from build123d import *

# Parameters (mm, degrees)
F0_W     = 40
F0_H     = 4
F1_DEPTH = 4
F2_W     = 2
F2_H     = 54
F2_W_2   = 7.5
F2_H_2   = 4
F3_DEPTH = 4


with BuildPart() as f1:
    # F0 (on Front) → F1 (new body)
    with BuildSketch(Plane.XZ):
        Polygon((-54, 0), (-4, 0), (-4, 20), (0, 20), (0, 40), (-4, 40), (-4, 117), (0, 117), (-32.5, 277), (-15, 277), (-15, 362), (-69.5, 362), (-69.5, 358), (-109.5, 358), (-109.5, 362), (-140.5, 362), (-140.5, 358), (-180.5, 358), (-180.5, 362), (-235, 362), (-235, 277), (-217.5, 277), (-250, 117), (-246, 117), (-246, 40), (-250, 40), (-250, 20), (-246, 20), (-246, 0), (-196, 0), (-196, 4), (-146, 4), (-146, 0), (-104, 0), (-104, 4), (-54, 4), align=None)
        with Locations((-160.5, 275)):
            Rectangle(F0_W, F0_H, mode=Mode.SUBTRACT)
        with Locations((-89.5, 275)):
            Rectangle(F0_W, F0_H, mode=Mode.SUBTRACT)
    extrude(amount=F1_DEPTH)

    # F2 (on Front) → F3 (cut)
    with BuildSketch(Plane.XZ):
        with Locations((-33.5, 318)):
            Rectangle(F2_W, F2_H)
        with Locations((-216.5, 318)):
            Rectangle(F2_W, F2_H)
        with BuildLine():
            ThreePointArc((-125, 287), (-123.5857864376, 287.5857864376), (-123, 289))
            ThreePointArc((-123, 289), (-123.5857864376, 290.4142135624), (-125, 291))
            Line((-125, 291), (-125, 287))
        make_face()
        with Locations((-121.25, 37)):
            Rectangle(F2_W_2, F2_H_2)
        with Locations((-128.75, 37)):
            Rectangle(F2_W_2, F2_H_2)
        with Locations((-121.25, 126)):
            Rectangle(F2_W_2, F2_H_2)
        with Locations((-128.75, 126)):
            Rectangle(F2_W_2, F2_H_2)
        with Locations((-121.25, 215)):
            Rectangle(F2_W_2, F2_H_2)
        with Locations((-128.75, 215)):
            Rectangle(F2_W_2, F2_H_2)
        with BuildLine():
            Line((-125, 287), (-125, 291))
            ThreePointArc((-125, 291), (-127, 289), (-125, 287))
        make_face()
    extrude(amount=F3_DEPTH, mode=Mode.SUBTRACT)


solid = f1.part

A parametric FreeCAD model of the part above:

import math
import FreeCAD as App
import Part
import Sketcher

V = App.Vector

doc = App.newDocument("Part")
body = doc.addObject("PartDesign::Body", "Body")

# Sketch on XZ plane
sketch1 = doc.addObject("Sketcher::SketchObject", "Sketch")
body.addObject(sketch1)
sketch1.AttachmentSupport = (doc.XZ_Plane, [""])
sketch1.MapMode = "FlatFace"
sketch1.addGeometry([
    Part.LineSegment(V(-54, 0, 0), V(-4, 0, 0)),  # 0
    Part.LineSegment(V(-4, 0, 0), V(-4, 20, 0)),  # 1
    Part.LineSegment(V(-4, 20, 0), V(0, 20, 0)),  # 2
    Part.LineSegment(V(0, 20, 0), V(0, 40, 0)),  # 3
    Part.LineSegment(V(0, 40, 0), V(-4, 40, 0)),  # 4
    Part.LineSegment(V(-4, 40, 0), V(-4, 117, 0)),  # 5
    Part.LineSegment(V(-4, 117, 0), V(0, 117, 0)),  # 6
    Part.LineSegment(V(0, 117, 0), V(-32.5, 277, 0)),  # 7
    Part.LineSegment(V(-32.5, 277, 0), V(-15, 277, 0)),  # 8
    Part.LineSegment(V(-15, 277, 0), V(-15, 362, 0)),  # 9
    Part.LineSegment(V(-15, 362, 0), V(-69.5, 362, 0)),  # 10
    Part.LineSegment(V(-69.5, 362, 0), V(-69.5, 358, 0)),  # 11
    Part.LineSegment(V(-69.5, 358, 0), V(-109.5, 358, 0)),  # 12
    Part.LineSegment(V(-109.5, 358, 0), V(-109.5, 362, 0)),  # 13
    Part.LineSegment(V(-109.5, 362, 0), V(-140.5, 362, 0)),  # 14
    Part.LineSegment(V(-140.5, 362, 0), V(-140.5, 358, 0)),  # 15
    Part.LineSegment(V(-140.5, 358, 0), V(-180.5, 358, 0)),  # 16
    Part.LineSegment(V(-180.5, 358, 0), V(-180.5, 362, 0)),  # 17
    Part.LineSegment(V(-180.5, 362, 0), V(-235, 362, 0)),  # 18
    Part.LineSegment(V(-235, 362, 0), V(-235, 277, 0)),  # 19
    Part.LineSegment(V(-235, 277, 0), V(-217.5, 277, 0)),  # 20
    Part.LineSegment(V(-217.5, 277, 0), V(-250, 117, 0)),  # 21
    Part.LineSegment(V(-250, 117, 0), V(-246, 117, 0)),  # 22
    Part.LineSegment(V(-246, 117, 0), V(-246, 40, 0)),  # 23
    Part.LineSegment(V(-246, 40, 0), V(-250, 40, 0)),  # 24
    Part.LineSegment(V(-250, 40, 0), V(-250, 20, 0)),  # 25
    Part.LineSegment(V(-250, 20, 0), V(-246, 20, 0)),  # 26
    Part.LineSegment(V(-246, 20, 0), V(-246, 0, 0)),  # 27
    Part.LineSegment(V(-246, 0, 0), V(-196, 0, 0)),  # 28
    Part.LineSegment(V(-196, 0, 0), V(-196, 4, 0)),  # 29
    Part.LineSegment(V(-196, 4, 0), V(-146, 4, 0)),  # 30
    Part.LineSegment(V(-146, 4, 0), V(-146, 0, 0)),  # 31
    Part.LineSegment(V(-146, 0, 0), V(-104, 0, 0)),  # 32
    Part.LineSegment(V(-104, 0, 0), V(-104, 4, 0)),  # 33
    Part.LineSegment(V(-104, 4, 0), V(-54, 4, 0)),  # 34
    Part.LineSegment(V(-54, 4, 0), V(-54, 0, 0)),  # 35
    Part.LineSegment(V(-140.5, 273, 0), V(-180.5, 273, 0)),  # 36
    Part.LineSegment(V(-180.5, 273, 0), V(-180.5, 277, 0)),  # 37
    Part.LineSegment(V(-180.5, 277, 0), V(-140.5, 277, 0)),  # 38
    Part.LineSegment(V(-140.5, 277, 0), V(-140.5, 273, 0)),  # 39
    Part.LineSegment(V(-69.5, 273, 0), V(-109.5, 273, 0)),  # 40
    Part.LineSegment(V(-109.5, 273, 0), V(-109.5, 277, 0)),  # 41
    Part.LineSegment(V(-109.5, 277, 0), V(-69.5, 277, 0)),  # 42
    Part.LineSegment(V(-69.5, 277, 0), V(-69.5, 273, 0)),  # 43
], False)
sketch1.addConstraint([
    Sketcher.Constraint("Coincident", 0, 2, 1, 1),
    Sketcher.Constraint("Coincident", 1, 2, 2, 1),
    Sketcher.Constraint("Coincident", 2, 2, 3, 1),
    Sketcher.Constraint("Coincident", 3, 2, 4, 1),
    Sketcher.Constraint("Coincident", 4, 2, 5, 1),
    Sketcher.Constraint("Coincident", 5, 2, 6, 1),
    Sketcher.Constraint("Coincident", 6, 2, 7, 1),
    Sketcher.Constraint("Coincident", 7, 2, 8, 1),
    Sketcher.Constraint("Coincident", 8, 2, 9, 1),
    Sketcher.Constraint("Coincident", 9, 2, 10, 1),
    Sketcher.Constraint("Coincident", 10, 2, 11, 1),
    Sketcher.Constraint("Coincident", 11, 2, 12, 1),
    Sketcher.Constraint("Coincident", 12, 2, 13, 1),
    Sketcher.Constraint("Coincident", 13, 2, 14, 1),
    Sketcher.Constraint("Coincident", 14, 2, 15, 1),
    Sketcher.Constraint("Coincident", 15, 2, 16, 1),
    Sketcher.Constraint("Coincident", 16, 2, 17, 1),
    Sketcher.Constraint("Coincident", 17, 2, 18, 1),
    Sketcher.Constraint("Coincident", 18, 2, 19, 1),
    Sketcher.Constraint("Coincident", 19, 2, 20, 1),
    Sketcher.Constraint("Coincident", 20, 2, 21, 1),
    Sketcher.Constraint("Coincident", 21, 2, 22, 1),
    Sketcher.Constraint("Coincident", 22, 2, 23, 1),
    Sketcher.Constraint("Coincident", 23, 2, 24, 1),
    Sketcher.Constraint("Coincident", 24, 2, 25, 1),
    Sketcher.Constraint("Coincident", 25, 2, 26, 1),
    Sketcher.Constraint("Coincident", 26, 2, 27, 1),
    Sketcher.Constraint("Coincident", 27, 2, 28, 1),
    Sketcher.Constraint("Coincident", 28, 2, 29, 1),
    Sketcher.Constraint("Coincident", 29, 2, 30, 1),
    Sketcher.Constraint("Coincident", 30, 2, 31, 1),
    Sketcher.Constraint("Coincident", 31, 2, 32, 1),
    Sketcher.Constraint("Coincident", 32, 2, 33, 1),
    Sketcher.Constraint("Coincident", 33, 2, 34, 1),
    Sketcher.Constraint("Coincident", 34, 2, 35, 1),
    Sketcher.Constraint("Coincident", 35, 2, 0, 1),
    Sketcher.Constraint("Coincident", 36, 2, 37, 1),
    Sketcher.Constraint("Coincident", 37, 2, 38, 1),
    Sketcher.Constraint("Coincident", 38, 2, 39, 1),
    Sketcher.Constraint("Coincident", 39, 2, 36, 1),
    Sketcher.Constraint("Coincident", 40, 2, 41, 1),
    Sketcher.Constraint("Coincident", 41, 2, 42, 1),
    Sketcher.Constraint("Coincident", 42, 2, 43, 1),
    Sketcher.Constraint("Coincident", 43, 2, 40, 1),
    Sketcher.Constraint("Horizontal", 0),
    Sketcher.Constraint("Vertical", 1),
    Sketcher.Constraint("Horizontal", 2),
    Sketcher.Constraint("Vertical", 3),
    Sketcher.Constraint("Horizontal", 4),
    Sketcher.Constraint("Vertical", 5),
    Sketcher.Constraint("Horizontal", 6),
    Sketcher.Constraint("Horizontal", 8),
    Sketcher.Constraint("Vertical", 9),
    Sketcher.Constraint("Horizontal", 10),
    Sketcher.Constraint("Vertical", 11),
    Sketcher.Constraint("Horizontal", 12),
    Sketcher.Constraint("Vertical", 13),
    Sketcher.Constraint("Horizontal", 14),
    Sketcher.Constraint("Vertical", 15),
    Sketcher.Constraint("Horizontal", 16),
    Sketcher.Constraint("Vertical", 17),
    Sketcher.Constraint("Horizontal", 18),
    Sketcher.Constraint("Vertical", 19),
    Sketcher.Constraint("Horizontal", 20),
    Sketcher.Constraint("Horizontal", 22),
    Sketcher.Constraint("Vertical", 23),
    Sketcher.Constraint("Horizontal", 24),
    Sketcher.Constraint("Vertical", 25),
    Sketcher.Constraint("Horizontal", 26),
    Sketcher.Constraint("Vertical", 27),
    Sketcher.Constraint("Horizontal", 28),
    Sketcher.Constraint("Vertical", 29),
    Sketcher.Constraint("Horizontal", 30),
    Sketcher.Constraint("Vertical", 31),
    Sketcher.Constraint("Horizontal", 32),
    Sketcher.Constraint("Vertical", 33),
    Sketcher.Constraint("Horizontal", 34),
    Sketcher.Constraint("Vertical", 35),
    Sketcher.Constraint("Horizontal", 36),
    Sketcher.Constraint("Vertical", 37),
    Sketcher.Constraint("Horizontal", 38),
    Sketcher.Constraint("Vertical", 39),
    Sketcher.Constraint("Horizontal", 40),
    Sketcher.Constraint("Vertical", 41),
    Sketcher.Constraint("Horizontal", 42),
    Sketcher.Constraint("Vertical", 43),
    Sketcher.Constraint("PointOnObject", 0, 2, -1),
    Sketcher.Constraint("PointOnObject", 2, 2, -2),
    Sketcher.Constraint("PointOnObject", 6, 2, -2),
    Sketcher.Constraint("PointOnObject", 27, 2, -1),
    Sketcher.Constraint("PointOnObject", 31, 2, -1),
    Sketcher.Constraint("Horizontal", 10, 2, 13, 2),
    Sketcher.Constraint("Horizontal", 12, 2, 15, 2),
    Sketcher.Constraint("Horizontal", 14, 2, 17, 2),
    Sketcher.Constraint("Horizontal", 8, 2, 19, 2),
    Sketcher.Constraint("Horizontal", 6, 2, 21, 2),
    Sketcher.Constraint("Horizontal", 4, 2, 23, 2),
    Sketcher.Constraint("Horizontal", 2, 2, 25, 2),
    Sketcher.Constraint("Horizontal", 30, 2, 33, 2),
    Sketcher.Constraint("Horizontal", 20, 2, 37, 2),
    Sketcher.Constraint("Horizontal", 39, 2, 40, 2),
    Sketcher.Constraint("Horizontal", 38, 2, 41, 2),
    Sketcher.Constraint("Vertical", 1, 2, 4, 2),
    Sketcher.Constraint("Vertical", 21, 2, 24, 2),
    Sketcher.Constraint("Vertical", 23, 2, 26, 2),
    Sketcher.Constraint("Vertical", 17, 2, 36, 2),
    Sketcher.Constraint("Vertical", 15, 2, 38, 2),
    Sketcher.Constraint("Vertical", 13, 2, 40, 2),
    Sketcher.Constraint("Vertical", 11, 2, 42, 2),
    Sketcher.Constraint("Equal", 12, 16),
    Sketcher.Constraint("Equal", 10, 18),
    Sketcher.Constraint("Equal", 8, 20),
    Sketcher.Constraint("Equal", 6, 22),
    Sketcher.Constraint("Equal", 0, 28),
    Sketcher.Constraint("Equal", 28, 30),
    Sketcher.Constraint("Equal", 30, 34),
    Sketcher.Constraint("Equal", 1, 3),
    Sketcher.Constraint("Equal", 26, 11),
    Sketcher.Constraint("Equal", 17, 29),
    Sketcher.Constraint("Equal", 35, 37),
    Sketcher.Constraint("Equal", 7, 21),
    Sketcher.Constraint("DistanceX", 0, 1, 0, 2, 50.0),
    Sketcher.Constraint("DistanceX", 2, 1, 2, 2, 4.0),
    Sketcher.Constraint("DistanceX", 12, 2, 12, 1, 40.0),
    Sketcher.Constraint("DistanceX", 14, 2, 14, 1, 31.0),
    Sketcher.Constraint("DistanceX", 32, 1, 32, 2, 42.0),
    Sketcher.Constraint("DistanceY", 1, 1, 1, 2, 20.0),
    Sketcher.Constraint("DistanceY", 5, 1, 5, 2, 77.0),
    Sketcher.Constraint("DistanceY", 9, 1, 9, 2, 85.0),
    Sketcher.Constraint("DistanceX", 8, 1, 8, 2, 17.5),
    Sketcher.Constraint("DistanceX", 10, 2, 10, 1, 54.5),
    Sketcher.Constraint("DistanceY", -1, 1, 7, 2, 277.0),
])
pad1 = doc.addObject("PartDesign::Pad", "Pad")
body.addObject(pad1)
pad1.Profile = sketch1
pad1.Length = 4

# Sketch on XZ plane
sketch2 = doc.addObject("Sketcher::SketchObject", "Sketch001")
body.addObject(sketch2)
sketch2.AttachmentSupport = (doc.XZ_Plane, [""])
sketch2.MapMode = "FlatFace"
sketch2.addGeometry([
    Part.LineSegment(V(-34.5, 345, 0), V(-34.5, 291, 0)),  # 0
    Part.LineSegment(V(-34.5, 291, 0), V(-32.5, 291, 0)),  # 1
    Part.LineSegment(V(-32.5, 291, 0), V(-32.5, 345, 0)),  # 2
    Part.LineSegment(V(-32.5, 345, 0), V(-34.5, 345, 0)),  # 3
    Part.LineSegment(V(-217.5, 345, 0), V(-217.5, 291, 0)),  # 4
    Part.LineSegment(V(-217.5, 291, 0), V(-215.5, 291, 0)),  # 5
    Part.LineSegment(V(-215.5, 291, 0), V(-215.5, 345, 0)),  # 6
    Part.LineSegment(V(-215.5, 345, 0), V(-217.5, 345, 0)),  # 7
    Part.ArcOfCircle(Part.Circle(V(-125, 289, 0), V(0, 0, 1), 2), math.radians(-90), math.radians(0)),  # 8
    Part.ArcOfCircle(Part.Circle(V(-125, 289, 0), V(0, 0, 1), 2), math.radians(0), math.radians(90)),  # 9
    Part.ArcOfCircle(Part.Circle(V(-125, 289, 0), V(0, 0, 1), 2), math.radians(90), math.radians(270)),  # 10
    Part.LineSegment(V(-117.5, 35, 0), V(-117.5, 39, 0)),  # 11
    Part.LineSegment(V(-117.5, 39, 0), V(-132.5, 39, 0)),  # 12
    Part.LineSegment(V(-132.5, 39, 0), V(-132.5, 35, 0)),  # 13
    Part.LineSegment(V(-132.5, 35, 0), V(-117.5, 35, 0)),  # 14
    Part.LineSegment(V(-117.5, 124, 0), V(-117.5, 128, 0)),  # 15
    Part.LineSegment(V(-117.5, 128, 0), V(-132.5, 128, 0)),  # 16
    Part.LineSegment(V(-132.5, 128, 0), V(-132.5, 124, 0)),  # 17
    Part.LineSegment(V(-132.5, 124, 0), V(-117.5, 124, 0)),  # 18
    Part.LineSegment(V(-117.5, 213, 0), V(-117.5, 217, 0)),  # 19
    Part.LineSegment(V(-117.5, 217, 0), V(-132.5, 217, 0)),  # 20
    Part.LineSegment(V(-132.5, 217, 0), V(-132.5, 213, 0)),  # 21
    Part.LineSegment(V(-132.5, 213, 0), V(-117.5, 213, 0)),  # 22
], False)
sketch2.addConstraint([
    Sketcher.Constraint("Coincident", 0, 2, 1, 1),
    Sketcher.Constraint("Coincident", 1, 2, 2, 1),
    Sketcher.Constraint("Coincident", 2, 2, 3, 1),
    Sketcher.Constraint("Coincident", 3, 2, 0, 1),
    Sketcher.Constraint("Coincident", 4, 2, 5, 1),
    Sketcher.Constraint("Coincident", 5, 2, 6, 1),
    Sketcher.Constraint("Coincident", 6, 2, 7, 1),
    Sketcher.Constraint("Coincident", 7, 2, 4, 1),
    Sketcher.Constraint("Tangent", 8, 2, 9, 1),
    Sketcher.Constraint("Tangent", 9, 2, 10, 1),
    Sketcher.Constraint("Tangent", 10, 2, 8, 1),
    Sketcher.Constraint("Coincident", 11, 2, 12, 1),
    Sketcher.Constraint("Coincident", 12, 2, 13, 1),
    Sketcher.Constraint("Coincident", 13, 2, 14, 1),
    Sketcher.Constraint("Coincident", 14, 2, 11, 1),
    Sketcher.Constraint("Coincident", 15, 2, 16, 1),
    Sketcher.Constraint("Coincident", 16, 2, 17, 1),
    Sketcher.Constraint("Coincident", 17, 2, 18, 1),
    Sketcher.Constraint("Coincident", 18, 2, 15, 1),
    Sketcher.Constraint("Coincident", 19, 2, 20, 1),
    Sketcher.Constraint("Coincident", 20, 2, 21, 1),
    Sketcher.Constraint("Coincident", 21, 2, 22, 1),
    Sketcher.Constraint("Coincident", 22, 2, 19, 1),
    Sketcher.Constraint("Vertical", 0),
    Sketcher.Constraint("Horizontal", 1),
    Sketcher.Constraint("Vertical", 2),
    Sketcher.Constraint("Horizontal", 3),
    Sketcher.Constraint("Vertical", 4),
    Sketcher.Constraint("Horizontal", 5),
    Sketcher.Constraint("Vertical", 6),
    Sketcher.Constraint("Horizontal", 7),
    Sketcher.Constraint("Vertical", 11),
    Sketcher.Constraint("Horizontal", 12),
    Sketcher.Constraint("Vertical", 13),
    Sketcher.Constraint("Horizontal", 14),
    Sketcher.Constraint("Vertical", 15),
    Sketcher.Constraint("Horizontal", 16),
    Sketcher.Constraint("Vertical", 17),
    Sketcher.Constraint("Horizontal", 18),
    Sketcher.Constraint("Vertical", 19),
    Sketcher.Constraint("Horizontal", 20),
    Sketcher.Constraint("Vertical", 21),
    Sketcher.Constraint("Horizontal", 22),
    Sketcher.Constraint("Horizontal", 1, 2, 4, 2),
    Sketcher.Constraint("Horizontal", 3, 2, 6, 2),
    Sketcher.Constraint("Horizontal", 10, 3, 8, 2),
    Sketcher.Constraint("Horizontal", 5, 2, 9, 2),
    Sketcher.Constraint("Vertical", 10, 3, 9, 2),
    Sketcher.Constraint("Vertical", 9, 2, 10, 2),
    Sketcher.Constraint("Vertical", 14, 2, 15, 2),
    Sketcher.Constraint("Vertical", 13, 2, 16, 2),
    Sketcher.Constraint("Vertical", 18, 2, 19, 2),
    Sketcher.Constraint("Vertical", 17, 2, 20, 2),
    Sketcher.Constraint("Equal", 3, 5),
    Sketcher.Constraint("Equal", 13, 15),
    Sketcher.Constraint("Equal", 17, 19),
    Sketcher.Constraint("Radius", 8, 2.0),
    Sketcher.Constraint("DistanceX", 1, 1, 1, 2, 2.0),
    Sketcher.Constraint("DistanceX", 12, 2, 12, 1, 15.0),
    Sketcher.Constraint("DistanceY", 0, 2, 0, 1, 54.0),
    Sketcher.Constraint("DistanceY", 11, 1, 11, 2, 4.0),
    Sketcher.Constraint("DistanceX", 8, 3, -1, 1, 125.0),
    Sketcher.Constraint("DistanceY", -1, 1, 8, 3, 289.0),
    Sketcher.Constraint("DistanceY", -1, 1, 11, 2, 39.0),
    Sketcher.Constraint("DistanceY", -1, 1, 15, 2, 128.0),
    Sketcher.Constraint("DistanceY", -1, 1, 19, 2, 217.0),
    Sketcher.Constraint("DistanceX", 4, 2, 0, 2, 183.0),
    Sketcher.Constraint("DistanceX", 0, 2, -1, 1, 34.5),
    Sketcher.Constraint("DistanceX", 11, 2, -1, 1, 117.5),
])
pocket1 = doc.addObject("PartDesign::Pocket", "Pocket")
body.addObject(pocket1)
pocket1.Profile = sketch2
pocket1.Length = 4
pocket1.Reversed = True

doc.recompute()
